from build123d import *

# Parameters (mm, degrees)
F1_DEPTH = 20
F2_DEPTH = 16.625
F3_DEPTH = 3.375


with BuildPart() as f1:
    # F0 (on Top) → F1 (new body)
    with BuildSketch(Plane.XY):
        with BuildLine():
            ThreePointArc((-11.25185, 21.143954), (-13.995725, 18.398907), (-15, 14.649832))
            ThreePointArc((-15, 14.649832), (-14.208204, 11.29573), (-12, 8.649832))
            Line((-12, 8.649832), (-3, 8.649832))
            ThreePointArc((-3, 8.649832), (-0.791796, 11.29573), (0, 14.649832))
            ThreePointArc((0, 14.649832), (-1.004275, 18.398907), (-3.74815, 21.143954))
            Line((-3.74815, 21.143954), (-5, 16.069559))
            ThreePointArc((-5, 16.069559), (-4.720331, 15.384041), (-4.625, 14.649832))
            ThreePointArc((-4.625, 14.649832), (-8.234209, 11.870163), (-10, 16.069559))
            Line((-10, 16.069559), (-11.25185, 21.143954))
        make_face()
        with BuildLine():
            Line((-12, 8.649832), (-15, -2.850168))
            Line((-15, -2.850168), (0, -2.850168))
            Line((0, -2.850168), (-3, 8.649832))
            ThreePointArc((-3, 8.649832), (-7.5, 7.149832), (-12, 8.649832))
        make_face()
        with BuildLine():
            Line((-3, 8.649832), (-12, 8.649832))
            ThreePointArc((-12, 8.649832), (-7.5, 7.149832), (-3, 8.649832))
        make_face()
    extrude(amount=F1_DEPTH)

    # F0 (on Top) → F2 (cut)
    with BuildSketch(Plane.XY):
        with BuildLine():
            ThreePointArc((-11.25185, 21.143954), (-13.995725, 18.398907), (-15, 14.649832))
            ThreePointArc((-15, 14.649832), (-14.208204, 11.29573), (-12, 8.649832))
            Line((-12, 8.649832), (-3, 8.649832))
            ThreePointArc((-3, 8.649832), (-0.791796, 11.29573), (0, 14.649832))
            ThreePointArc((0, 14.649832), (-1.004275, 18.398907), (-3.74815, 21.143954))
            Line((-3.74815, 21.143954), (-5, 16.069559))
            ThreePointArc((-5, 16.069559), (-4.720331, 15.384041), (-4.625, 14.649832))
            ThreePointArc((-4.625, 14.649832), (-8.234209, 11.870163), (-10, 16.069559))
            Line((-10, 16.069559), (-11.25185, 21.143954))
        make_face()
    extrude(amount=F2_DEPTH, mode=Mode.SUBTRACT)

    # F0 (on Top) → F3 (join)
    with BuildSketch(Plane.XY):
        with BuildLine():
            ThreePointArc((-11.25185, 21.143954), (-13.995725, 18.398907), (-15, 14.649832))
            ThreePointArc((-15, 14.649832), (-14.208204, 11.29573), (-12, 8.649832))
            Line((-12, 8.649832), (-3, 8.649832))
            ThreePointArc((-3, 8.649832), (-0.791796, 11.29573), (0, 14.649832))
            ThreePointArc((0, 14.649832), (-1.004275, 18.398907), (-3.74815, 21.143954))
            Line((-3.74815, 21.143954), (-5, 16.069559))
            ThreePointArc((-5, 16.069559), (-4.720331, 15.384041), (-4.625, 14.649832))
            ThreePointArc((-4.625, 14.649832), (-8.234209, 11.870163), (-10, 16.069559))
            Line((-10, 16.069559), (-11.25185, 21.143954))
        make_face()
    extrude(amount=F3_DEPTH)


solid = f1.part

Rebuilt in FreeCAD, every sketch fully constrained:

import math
import FreeCAD as App
import Part
import Sketcher
from FreeCAD import Vector

doc = App.newDocument("Part")
params = doc.addObject("Spreadsheet::Sheet", "Params")
for row, (alias, value) in enumerate([
    ("sketch1_radius", "7.499999 mm"),
    ("sketch1_width", "15 mm"),
    ("pad1_length", "20 mm"),
    ("sketch2_radius", "7.499999 mm"),
    ("sketch2_width", "9 mm"),
    ("pocket1_length", "16.625 mm"),
    ("sketch3_radius", "7.499999 mm"),
    ("sketch3_width", "9 mm"),
    ("pad2_length", "3.375 mm"),
], start=1):
    params.set(f"A{row}", alias)
    params.set(f"B{row}", "=" + value)
    params.setAlias(f"B{row}", alias)

body = doc.addObject("PartDesign::Body", "Body")

sketch1 = body.newObject("Sketcher::SketchObject", "Sketch")
sketch1.AttachmentSupport = (doc.getObject("XY_Plane"), [""])
sketch1.MapMode = "FlatFace"
sketch1.addGeometry(Part.ArcOfCircle(Part.Circle(Vector(-7.500003, 14.649834, 0), Vector(0, 0, 1), 7.499997), math.radians(120.016307), math.radians(180.000013)), False)
sketch1.addGeometry(Part.ArcOfCircle(Part.Circle(Vector(-7.500001, 14.649832, 0), Vector(0, 0, 1), 7.499999), math.radians(179.999998), math.radians(233.130105)), False)
sketch1.addGeometry(Part.LineSegment(Vector(-12, 8.649832, 0), Vector(-15, -2.850168, 0)), False)
sketch1.addGeometry(Part.LineSegment(Vector(-15, -2.850168, 0), Vector(0, -2.850168, 0)), False)
sketch1.addGeometry(Part.LineSegment(Vector(0, -2.850168, 0), Vector(-3, 8.649832, 0)), False)
sketch1.addGeometry(Part.ArcOfCircle(Part.Circle(Vector(-7.499999, 14.649832, 0), Vector(0, 0, 1), 7.499999), math.radians(-53.130105), math.radians(0.000002)), False)
sketch1.addGeometry(Part.ArcOfCircle(Part.Circle(Vector(-7.499997, 14.649834, 0), Vector(0, 0, 1), 7.499997), math.radians(-0.000013), math.radians(59.983693)), False)
sketch1.addGeometry(Part.LineSegment(Vector(-3.74815, 21.143954, 0), Vector(-5, 16.069559, 0)), False)
sketch1.addGeometry(Part.ArcOfCircle(Part.Circle(Vector(-7.500012, 14.649829, 0), Vector(0, 0, 1), 2.875011), math.radians(0.000062), math.radians(29.591785)), False)
sketch1.addGeometry(Part.ArcOfCircle(Part.Circle(Vector(-7.5, 14.649832, 0), Vector(0, 0, 1), 2.875), math.radians(150.408162), math.radians(359.999994)), False)
sketch1.addGeometry(Part.LineSegment(Vector(-10, 16.069559, 0), Vector(-11.25185, 21.143954, 0)), False)
sketch1.addConstraint(Sketcher.Constraint("Tangent", 0, 2, 1, 1))
sketch1.addConstraint(Sketcher.Constraint("Coincident", 1, 2, 2, 1))
sketch1.addConstraint(Sketcher.Constraint("Coincident", 2, 2, 3, 1))
sketch1.addConstraint(Sketcher.Constraint("Coincident", 3, 2, 4, 1))
sketch1.addConstraint(Sketcher.Constraint("Coincident", 4, 2, 5, 1))
sketch1.addConstraint(Sketcher.Constraint("Tangent", 5, 2, 6, 1))
sketch1.addConstraint(Sketcher.Constraint("Coincident", 6, 2, 7, 1))
sketch1.addConstraint(Sketcher.Constraint("Coincident", 7, 2, 8, 2))
sketch1.addConstraint(Sketcher.Constraint("Tangent", 8, 1, 9, 2))
sketch1.addConstraint(Sketcher.Constraint("Coincident", 9, 1, 10, 1))
sketch1.addConstraint(Sketcher.Constraint("Coincident", 10, 2, 0, 1))
sketch1.addConstraint(Sketcher.Constraint("Horizontal", 3))
sketch1.addConstraint(Sketcher.Constraint("Coincident", 5, 3, 0, 3))
sketch1.addConstraint(Sketcher.Constraint("Coincident", 8, 3, 0, 3))
sketch1.addConstraint(Sketcher.Constraint("Equal", 1, 5))
sketch1.addConstraint(Sketcher.Constraint("Equal", 0, 6))
sketch1.addConstraint(Sketcher.Constraint("PointOnObject", 3, 2, -2))
sketch1.addConstraint(Sketcher.Constraint("PointOnObject", 5, 2, -2))
sketch1.addConstraint(Sketcher.Constraint("Horizontal", 9, 3, 0, 2))
sketch1.addConstraint(Sketcher.Constraint("Horizontal", 1, 2, 4, 2))
sketch1.addConstraint(Sketcher.Constraint("Horizontal", 0, 2, 5, 2))
sketch1.addConstraint(Sketcher.Constraint("Horizontal", 5, 2, 8, 1))
sketch1.addConstraint(Sketcher.Constraint("Horizontal", 7, 2, 9, 1))
sketch1.addConstraint(Sketcher.Constraint("Horizontal", 6, 2, 10, 2))
sketch1.addConstraint(Sketcher.Constraint("Vertical", 0, 2, 2, 2))
sketch1.addConstraint(Sketcher.Constraint("Equal", 7, 10))
sketch1.addConstraint(Sketcher.Constraint("Radius", 1, 7.499999))
sketch1.addConstraint(Sketcher.Constraint("DistanceX", 3, 1, 3, 2, 15.0))
sketch1.addConstraint(Sketcher.Constraint("DistanceX", 1, 2, -1, 1, 12.0))
sketch1.addConstraint(Sketcher.Constraint("DistanceX", 7, 2, -1, 1, 5.0))
sketch1.addConstraint(Sketcher.Constraint("Radius", 9, 2.875))
sketch1.addConstraint(Sketcher.Constraint("DistanceY", 2, 2, 1, 2, 11.5))
sketch1.addConstraint(Sketcher.Constraint("Distance", 7, 5.22653))
sketch1.addConstraint(Sketcher.Constraint("DistanceY", -1, 1, 1, 3, 14.649832))
sketch1.setExpression("Constraints[26]", "Params.sketch1_radius")
sketch1.setExpression("Constraints[27]", "Params.sketch1_width")
pad1 = body.newObject("PartDesign::Pad", "Pad")
pad1.Profile = sketch1
pad1.setExpression("Length", "Params.pad1_length")

sketch2 = body.newObject("Sketcher::SketchObject", "Sketch001")
sketch2.AttachmentSupport = (doc.getObject("XY_Plane"), [""])
sketch2.MapMode = "FlatFace"
sketch2.addGeometry(Part.ArcOfCircle(Part.Circle(Vector(-7.500003, 14.649834, 0), Vector(0, 0, 1), 7.499997), math.radians(120.016307), math.radians(180.000013)), False)
sketch2.addGeometry(Part.ArcOfCircle(Part.Circle(Vector(-7.500001, 14.649832, 0), Vector(0, 0, 1), 7.499999), math.radians(179.999998), math.radians(233.130105)), False)
sketch2.addGeometry(Part.LineSegment(Vector(-12, 8.649832, 0), Vector(-3, 8.649832, 0)), False)
sketch2.addGeometry(Part.ArcOfCircle(Part.Circle(Vector(-7.499999, 14.649832, 0), Vector(0, 0, 1), 7.499999), math.radians(-53.130105), math.radians(0.000002)), False)
sketch2.addGeometry(Part.ArcOfCircle(Part.Circle(Vector(-7.499997, 14.649834, 0), Vector(0, 0, 1), 7.499997), math.radians(-0.000013), math.radians(59.983693)), False)
sketch2.addGeometry(Part.LineSegment(Vector(-3.74815, 21.143954, 0), Vector(-5, 16.069559, 0)), False)
sketch2.addGeometry(Part.ArcOfCircle(Part.Circle(Vector(-7.500012, 14.649829, 0), Vector(0, 0, 1), 2.875011), math.radians(0.000062), math.radians(29.591785)), False)
sketch2.addGeometry(Part.ArcOfCircle(Part.Circle(Vector(-7.5, 14.649832, 0), Vector(0, 0, 1), 2.875), math.radians(150.408162), math.radians(359.999994)), False)
sketch2.addGeometry(Part.LineSegment(Vector(-10, 16.069559, 0), Vector(-11.25185, 21.143954, 0)), False)
sketch2.addConstraint(Sketcher.Constraint("Tangent", 0, 2, 1, 1))
sketch2.addConstraint(Sketcher.Constraint("Coincident", 1, 2, 2, 1))
sketch2.addConstraint(Sketcher.Constraint("Coincident", 2, 2, 3, 1))
sketch2.addConstraint(Sketcher.Constraint("Tangent", 3, 2, 4, 1))
sketch2.addConstraint(Sketcher.Constraint("Coincident", 4, 2, 5, 1))
sketch2.addConstraint(Sketcher.Constraint("Coincident", 5, 2, 6, 2))
sketch2.addConstraint(Sketcher.Constraint("Tangent", 6, 1, 7, 2))
sketch2.addConstraint(Sketcher.Constraint("Coincident", 7, 1, 8, 1))
sketch2.addConstraint(Sketcher.Constraint("Coincident", 8, 2, 0, 1))
sketch2.addConstraint(Sketcher.Constraint("Horizontal", 2))
sketch2.addConstraint(Sketcher.Constraint("Coincident", 3, 3, 0, 3))
sketch2.addConstraint(Sketcher.Constraint("Coincident", 6, 3, 0, 3))
sketch2.addConstraint(Sketcher.Constraint("Equal", 1, 3))
sketch2.addConstraint(Sketcher.Constraint("Equal", 0, 4))
sketch2.addConstraint(Sketcher.Constraint("PointOnObject", 3, 2, -2))
sketch2.addConstraint(Sketcher.Constraint("Horizontal", 7, 3, 0, 2))
sketch2.addConstraint(Sketcher.Constraint("Horizontal", 0, 2, 3, 2))
sketch2.addConstraint(Sketcher.Constraint("Horizontal", 3, 2, 6, 1))
sketch2.addConstraint(Sketcher.Constraint("Horizontal", 5, 2, 7, 1))
sketch2.addConstraint(Sketcher.Constraint("Horizontal", 4, 2, 8, 2))
sketch2.addConstraint(Sketcher.Constraint("Equal", 5, 8))
sketch2.addConstraint(Sketcher.Constraint("Radius", 1, 7.499999))
sketch2.addConstraint(Sketcher.Constraint("DistanceX", 2, 1, 2, 2, 9.0))
sketch2.addConstraint(Sketcher.Constraint("DistanceX", 0, 2, -1, 1, 15.0))
sketch2.addConstraint(Sketcher.Constraint("DistanceX", 5, 2, -1, 1, 5.0))
sketch2.addConstraint(Sketcher.Constraint("Radius", 7, 2.875))
sketch2.addConstraint(Sketcher.Constraint("Distance", 5, 5.22653))
sketch2.addConstraint(Sketcher.Constraint("DistanceY", -1, 1, 1, 3, 14.649832))
sketch2.setExpression("Constraints[21]", "Params.sketch2_radius")
sketch2.setExpression("Constraints[22]", "Params.sketch2_width")
pocket1 = body.newObject("PartDesign::Pocket", "Pocket")
pocket1.Profile = sketch2
pocket1.setExpression("Length", "Params.pocket1_length")
pocket1.Reversed = True

sketch3 = body.newObject("Sketcher::SketchObject", "Sketch002")
sketch3.AttachmentSupport = (doc.getObject("XY_Plane"), [""])
sketch3.MapMode = "FlatFace"
sketch3.addGeometry(Part.ArcOfCircle(Part.Circle(Vector(-7.500003, 14.649834, 0), Vector(0, 0, 1), 7.499997), math.radians(120.016307), math.radians(180.000013)), False)
sketch3.addGeometry(Part.ArcOfCircle(Part.Circle(Vector(-7.500001, 14.649832, 0), Vector(0, 0, 1), 7.499999), math.radians(179.999998), math.radians(233.130105)), False)
sketch3.addGeometry(Part.LineSegment(Vector(-12, 8.649832, 0), Vector(-3, 8.649832, 0)), False)
sketch3.addGeometry(Part.ArcOfCircle(Part.Circle(Vector(-7.499999, 14.649832, 0), Vector(0, 0, 1), 7.499999), math.radians(-53.130105), math.radians(0.000002)), False)
sketch3.addGeometry(Part.ArcOfCircle(Part.Circle(Vector(-7.499997, 14.649834, 0), Vector(0, 0, 1), 7.499997), math.radians(-0.000013), math.radians(59.983693)), False)
sketch3.addGeometry(Part.LineSegment(Vector(-3.74815, 21.143954, 0), Vector(-5, 16.069559, 0)), False)
sketch3.addGeometry(Part.ArcOfCircle(Part.Circle(Vector(-7.500012, 14.649829, 0), Vector(0, 0, 1), 2.875011), math.radians(0.000062), math.radians(29.591785)), False)
sketch3.addGeometry(Part.ArcOfCircle(Part.Circle(Vector(-7.5, 14.649832, 0), Vector(0, 0, 1), 2.875), math.radians(150.408162), math.radians(359.999994)), False)
sketch3.addGeometry(Part.LineSegment(Vector(-10, 16.069559, 0), Vector(-11.25185, 21.143954, 0)), False)
sketch3.addConstraint(Sketcher.Constraint("Tangent", 0, 2, 1, 1))
sketch3.addConstraint(Sketcher.Constraint("Coincident", 1, 2, 2, 1))
sketch3.addConstraint(Sketcher.Constraint("Coincident", 2, 2, 3, 1))
sketch3.addConstraint(Sketcher.Constraint("Tangent", 3, 2, 4, 1))
sketch3.addConstraint(Sketcher.Constraint("Coincident", 4, 2, 5, 1))
sketch3.addConstraint(Sketcher.Constraint("Coincident", 5, 2, 6, 2))
sketch3.addConstraint(Sketcher.Constraint("Tangent", 6, 1, 7, 2))
sketch3.addConstraint(Sketcher.Constraint("Coincident", 7, 1, 8, 1))
sketch3.addConstraint(Sketcher.Constraint("Coincident", 8, 2, 0, 1))
sketch3.addConstraint(Sketcher.Constraint("Horizontal", 2))
sketch3.addConstraint(Sketcher.Constraint("Coincident", 3, 3, 0, 3))
sketch3.addConstraint(Sketcher.Constraint("Coincident", 6, 3, 0, 3))
sketch3.addConstraint(Sketcher.Constraint("Equal", 1, 3))
sketch3.addConstraint(Sketcher.Constraint("Equal", 0, 4))
sketch3.addConstraint(Sketcher.Constraint("PointOnObject", 3, 2, -2))
sketch3.addConstraint(Sketcher.Constraint("Horizontal", 7, 3, 0, 2))
sketch3.addConstraint(Sketcher.Constraint("Horizontal", 0, 2, 3, 2))
sketch3.addConstraint(Sketcher.Constraint("Horizontal", 3, 2, 6, 1))
sketch3.addConstraint(Sketcher.Constraint("Horizontal", 5, 2, 7, 1))
sketch3.addConstraint(Sketcher.Constraint("Horizontal", 4, 2, 8, 2))
sketch3.addConstraint(Sketcher.Constraint("Equal", 5, 8))
sketch3.addConstraint(Sketcher.Constraint("Radius", 1, 7.499999))
sketch3.addConstraint(Sketcher.Constraint("DistanceX", 2, 1, 2, 2, 9.0))
sketch3.addConstraint(Sketcher.Constraint("DistanceX", 0, 2, -1, 1, 15.0))
sketch3.addConstraint(Sketcher.Constraint("DistanceX", 5, 2, -1, 1, 5.0))
sketch3.addConstraint(Sketcher.Constraint("Radius", 7, 2.875))
sketch3.addConstraint(Sketcher.Constraint("Distance", 5, 5.22653))
sketch3.addConstraint(Sketcher.Constraint("DistanceY", -1, 1, 1, 3, 14.649832))
sketch3.setExpression("Constraints[21]", "Params.sketch3_radius")
sketch3.setExpression("Constraints[22]", "Params.sketch3_width")
pad2 = body.newObject("PartDesign::Pad", "Pad001")
pad2.Profile = sketch3
pad2.setExpression("Length", "Params.pad2_length")

doc.recompute()
